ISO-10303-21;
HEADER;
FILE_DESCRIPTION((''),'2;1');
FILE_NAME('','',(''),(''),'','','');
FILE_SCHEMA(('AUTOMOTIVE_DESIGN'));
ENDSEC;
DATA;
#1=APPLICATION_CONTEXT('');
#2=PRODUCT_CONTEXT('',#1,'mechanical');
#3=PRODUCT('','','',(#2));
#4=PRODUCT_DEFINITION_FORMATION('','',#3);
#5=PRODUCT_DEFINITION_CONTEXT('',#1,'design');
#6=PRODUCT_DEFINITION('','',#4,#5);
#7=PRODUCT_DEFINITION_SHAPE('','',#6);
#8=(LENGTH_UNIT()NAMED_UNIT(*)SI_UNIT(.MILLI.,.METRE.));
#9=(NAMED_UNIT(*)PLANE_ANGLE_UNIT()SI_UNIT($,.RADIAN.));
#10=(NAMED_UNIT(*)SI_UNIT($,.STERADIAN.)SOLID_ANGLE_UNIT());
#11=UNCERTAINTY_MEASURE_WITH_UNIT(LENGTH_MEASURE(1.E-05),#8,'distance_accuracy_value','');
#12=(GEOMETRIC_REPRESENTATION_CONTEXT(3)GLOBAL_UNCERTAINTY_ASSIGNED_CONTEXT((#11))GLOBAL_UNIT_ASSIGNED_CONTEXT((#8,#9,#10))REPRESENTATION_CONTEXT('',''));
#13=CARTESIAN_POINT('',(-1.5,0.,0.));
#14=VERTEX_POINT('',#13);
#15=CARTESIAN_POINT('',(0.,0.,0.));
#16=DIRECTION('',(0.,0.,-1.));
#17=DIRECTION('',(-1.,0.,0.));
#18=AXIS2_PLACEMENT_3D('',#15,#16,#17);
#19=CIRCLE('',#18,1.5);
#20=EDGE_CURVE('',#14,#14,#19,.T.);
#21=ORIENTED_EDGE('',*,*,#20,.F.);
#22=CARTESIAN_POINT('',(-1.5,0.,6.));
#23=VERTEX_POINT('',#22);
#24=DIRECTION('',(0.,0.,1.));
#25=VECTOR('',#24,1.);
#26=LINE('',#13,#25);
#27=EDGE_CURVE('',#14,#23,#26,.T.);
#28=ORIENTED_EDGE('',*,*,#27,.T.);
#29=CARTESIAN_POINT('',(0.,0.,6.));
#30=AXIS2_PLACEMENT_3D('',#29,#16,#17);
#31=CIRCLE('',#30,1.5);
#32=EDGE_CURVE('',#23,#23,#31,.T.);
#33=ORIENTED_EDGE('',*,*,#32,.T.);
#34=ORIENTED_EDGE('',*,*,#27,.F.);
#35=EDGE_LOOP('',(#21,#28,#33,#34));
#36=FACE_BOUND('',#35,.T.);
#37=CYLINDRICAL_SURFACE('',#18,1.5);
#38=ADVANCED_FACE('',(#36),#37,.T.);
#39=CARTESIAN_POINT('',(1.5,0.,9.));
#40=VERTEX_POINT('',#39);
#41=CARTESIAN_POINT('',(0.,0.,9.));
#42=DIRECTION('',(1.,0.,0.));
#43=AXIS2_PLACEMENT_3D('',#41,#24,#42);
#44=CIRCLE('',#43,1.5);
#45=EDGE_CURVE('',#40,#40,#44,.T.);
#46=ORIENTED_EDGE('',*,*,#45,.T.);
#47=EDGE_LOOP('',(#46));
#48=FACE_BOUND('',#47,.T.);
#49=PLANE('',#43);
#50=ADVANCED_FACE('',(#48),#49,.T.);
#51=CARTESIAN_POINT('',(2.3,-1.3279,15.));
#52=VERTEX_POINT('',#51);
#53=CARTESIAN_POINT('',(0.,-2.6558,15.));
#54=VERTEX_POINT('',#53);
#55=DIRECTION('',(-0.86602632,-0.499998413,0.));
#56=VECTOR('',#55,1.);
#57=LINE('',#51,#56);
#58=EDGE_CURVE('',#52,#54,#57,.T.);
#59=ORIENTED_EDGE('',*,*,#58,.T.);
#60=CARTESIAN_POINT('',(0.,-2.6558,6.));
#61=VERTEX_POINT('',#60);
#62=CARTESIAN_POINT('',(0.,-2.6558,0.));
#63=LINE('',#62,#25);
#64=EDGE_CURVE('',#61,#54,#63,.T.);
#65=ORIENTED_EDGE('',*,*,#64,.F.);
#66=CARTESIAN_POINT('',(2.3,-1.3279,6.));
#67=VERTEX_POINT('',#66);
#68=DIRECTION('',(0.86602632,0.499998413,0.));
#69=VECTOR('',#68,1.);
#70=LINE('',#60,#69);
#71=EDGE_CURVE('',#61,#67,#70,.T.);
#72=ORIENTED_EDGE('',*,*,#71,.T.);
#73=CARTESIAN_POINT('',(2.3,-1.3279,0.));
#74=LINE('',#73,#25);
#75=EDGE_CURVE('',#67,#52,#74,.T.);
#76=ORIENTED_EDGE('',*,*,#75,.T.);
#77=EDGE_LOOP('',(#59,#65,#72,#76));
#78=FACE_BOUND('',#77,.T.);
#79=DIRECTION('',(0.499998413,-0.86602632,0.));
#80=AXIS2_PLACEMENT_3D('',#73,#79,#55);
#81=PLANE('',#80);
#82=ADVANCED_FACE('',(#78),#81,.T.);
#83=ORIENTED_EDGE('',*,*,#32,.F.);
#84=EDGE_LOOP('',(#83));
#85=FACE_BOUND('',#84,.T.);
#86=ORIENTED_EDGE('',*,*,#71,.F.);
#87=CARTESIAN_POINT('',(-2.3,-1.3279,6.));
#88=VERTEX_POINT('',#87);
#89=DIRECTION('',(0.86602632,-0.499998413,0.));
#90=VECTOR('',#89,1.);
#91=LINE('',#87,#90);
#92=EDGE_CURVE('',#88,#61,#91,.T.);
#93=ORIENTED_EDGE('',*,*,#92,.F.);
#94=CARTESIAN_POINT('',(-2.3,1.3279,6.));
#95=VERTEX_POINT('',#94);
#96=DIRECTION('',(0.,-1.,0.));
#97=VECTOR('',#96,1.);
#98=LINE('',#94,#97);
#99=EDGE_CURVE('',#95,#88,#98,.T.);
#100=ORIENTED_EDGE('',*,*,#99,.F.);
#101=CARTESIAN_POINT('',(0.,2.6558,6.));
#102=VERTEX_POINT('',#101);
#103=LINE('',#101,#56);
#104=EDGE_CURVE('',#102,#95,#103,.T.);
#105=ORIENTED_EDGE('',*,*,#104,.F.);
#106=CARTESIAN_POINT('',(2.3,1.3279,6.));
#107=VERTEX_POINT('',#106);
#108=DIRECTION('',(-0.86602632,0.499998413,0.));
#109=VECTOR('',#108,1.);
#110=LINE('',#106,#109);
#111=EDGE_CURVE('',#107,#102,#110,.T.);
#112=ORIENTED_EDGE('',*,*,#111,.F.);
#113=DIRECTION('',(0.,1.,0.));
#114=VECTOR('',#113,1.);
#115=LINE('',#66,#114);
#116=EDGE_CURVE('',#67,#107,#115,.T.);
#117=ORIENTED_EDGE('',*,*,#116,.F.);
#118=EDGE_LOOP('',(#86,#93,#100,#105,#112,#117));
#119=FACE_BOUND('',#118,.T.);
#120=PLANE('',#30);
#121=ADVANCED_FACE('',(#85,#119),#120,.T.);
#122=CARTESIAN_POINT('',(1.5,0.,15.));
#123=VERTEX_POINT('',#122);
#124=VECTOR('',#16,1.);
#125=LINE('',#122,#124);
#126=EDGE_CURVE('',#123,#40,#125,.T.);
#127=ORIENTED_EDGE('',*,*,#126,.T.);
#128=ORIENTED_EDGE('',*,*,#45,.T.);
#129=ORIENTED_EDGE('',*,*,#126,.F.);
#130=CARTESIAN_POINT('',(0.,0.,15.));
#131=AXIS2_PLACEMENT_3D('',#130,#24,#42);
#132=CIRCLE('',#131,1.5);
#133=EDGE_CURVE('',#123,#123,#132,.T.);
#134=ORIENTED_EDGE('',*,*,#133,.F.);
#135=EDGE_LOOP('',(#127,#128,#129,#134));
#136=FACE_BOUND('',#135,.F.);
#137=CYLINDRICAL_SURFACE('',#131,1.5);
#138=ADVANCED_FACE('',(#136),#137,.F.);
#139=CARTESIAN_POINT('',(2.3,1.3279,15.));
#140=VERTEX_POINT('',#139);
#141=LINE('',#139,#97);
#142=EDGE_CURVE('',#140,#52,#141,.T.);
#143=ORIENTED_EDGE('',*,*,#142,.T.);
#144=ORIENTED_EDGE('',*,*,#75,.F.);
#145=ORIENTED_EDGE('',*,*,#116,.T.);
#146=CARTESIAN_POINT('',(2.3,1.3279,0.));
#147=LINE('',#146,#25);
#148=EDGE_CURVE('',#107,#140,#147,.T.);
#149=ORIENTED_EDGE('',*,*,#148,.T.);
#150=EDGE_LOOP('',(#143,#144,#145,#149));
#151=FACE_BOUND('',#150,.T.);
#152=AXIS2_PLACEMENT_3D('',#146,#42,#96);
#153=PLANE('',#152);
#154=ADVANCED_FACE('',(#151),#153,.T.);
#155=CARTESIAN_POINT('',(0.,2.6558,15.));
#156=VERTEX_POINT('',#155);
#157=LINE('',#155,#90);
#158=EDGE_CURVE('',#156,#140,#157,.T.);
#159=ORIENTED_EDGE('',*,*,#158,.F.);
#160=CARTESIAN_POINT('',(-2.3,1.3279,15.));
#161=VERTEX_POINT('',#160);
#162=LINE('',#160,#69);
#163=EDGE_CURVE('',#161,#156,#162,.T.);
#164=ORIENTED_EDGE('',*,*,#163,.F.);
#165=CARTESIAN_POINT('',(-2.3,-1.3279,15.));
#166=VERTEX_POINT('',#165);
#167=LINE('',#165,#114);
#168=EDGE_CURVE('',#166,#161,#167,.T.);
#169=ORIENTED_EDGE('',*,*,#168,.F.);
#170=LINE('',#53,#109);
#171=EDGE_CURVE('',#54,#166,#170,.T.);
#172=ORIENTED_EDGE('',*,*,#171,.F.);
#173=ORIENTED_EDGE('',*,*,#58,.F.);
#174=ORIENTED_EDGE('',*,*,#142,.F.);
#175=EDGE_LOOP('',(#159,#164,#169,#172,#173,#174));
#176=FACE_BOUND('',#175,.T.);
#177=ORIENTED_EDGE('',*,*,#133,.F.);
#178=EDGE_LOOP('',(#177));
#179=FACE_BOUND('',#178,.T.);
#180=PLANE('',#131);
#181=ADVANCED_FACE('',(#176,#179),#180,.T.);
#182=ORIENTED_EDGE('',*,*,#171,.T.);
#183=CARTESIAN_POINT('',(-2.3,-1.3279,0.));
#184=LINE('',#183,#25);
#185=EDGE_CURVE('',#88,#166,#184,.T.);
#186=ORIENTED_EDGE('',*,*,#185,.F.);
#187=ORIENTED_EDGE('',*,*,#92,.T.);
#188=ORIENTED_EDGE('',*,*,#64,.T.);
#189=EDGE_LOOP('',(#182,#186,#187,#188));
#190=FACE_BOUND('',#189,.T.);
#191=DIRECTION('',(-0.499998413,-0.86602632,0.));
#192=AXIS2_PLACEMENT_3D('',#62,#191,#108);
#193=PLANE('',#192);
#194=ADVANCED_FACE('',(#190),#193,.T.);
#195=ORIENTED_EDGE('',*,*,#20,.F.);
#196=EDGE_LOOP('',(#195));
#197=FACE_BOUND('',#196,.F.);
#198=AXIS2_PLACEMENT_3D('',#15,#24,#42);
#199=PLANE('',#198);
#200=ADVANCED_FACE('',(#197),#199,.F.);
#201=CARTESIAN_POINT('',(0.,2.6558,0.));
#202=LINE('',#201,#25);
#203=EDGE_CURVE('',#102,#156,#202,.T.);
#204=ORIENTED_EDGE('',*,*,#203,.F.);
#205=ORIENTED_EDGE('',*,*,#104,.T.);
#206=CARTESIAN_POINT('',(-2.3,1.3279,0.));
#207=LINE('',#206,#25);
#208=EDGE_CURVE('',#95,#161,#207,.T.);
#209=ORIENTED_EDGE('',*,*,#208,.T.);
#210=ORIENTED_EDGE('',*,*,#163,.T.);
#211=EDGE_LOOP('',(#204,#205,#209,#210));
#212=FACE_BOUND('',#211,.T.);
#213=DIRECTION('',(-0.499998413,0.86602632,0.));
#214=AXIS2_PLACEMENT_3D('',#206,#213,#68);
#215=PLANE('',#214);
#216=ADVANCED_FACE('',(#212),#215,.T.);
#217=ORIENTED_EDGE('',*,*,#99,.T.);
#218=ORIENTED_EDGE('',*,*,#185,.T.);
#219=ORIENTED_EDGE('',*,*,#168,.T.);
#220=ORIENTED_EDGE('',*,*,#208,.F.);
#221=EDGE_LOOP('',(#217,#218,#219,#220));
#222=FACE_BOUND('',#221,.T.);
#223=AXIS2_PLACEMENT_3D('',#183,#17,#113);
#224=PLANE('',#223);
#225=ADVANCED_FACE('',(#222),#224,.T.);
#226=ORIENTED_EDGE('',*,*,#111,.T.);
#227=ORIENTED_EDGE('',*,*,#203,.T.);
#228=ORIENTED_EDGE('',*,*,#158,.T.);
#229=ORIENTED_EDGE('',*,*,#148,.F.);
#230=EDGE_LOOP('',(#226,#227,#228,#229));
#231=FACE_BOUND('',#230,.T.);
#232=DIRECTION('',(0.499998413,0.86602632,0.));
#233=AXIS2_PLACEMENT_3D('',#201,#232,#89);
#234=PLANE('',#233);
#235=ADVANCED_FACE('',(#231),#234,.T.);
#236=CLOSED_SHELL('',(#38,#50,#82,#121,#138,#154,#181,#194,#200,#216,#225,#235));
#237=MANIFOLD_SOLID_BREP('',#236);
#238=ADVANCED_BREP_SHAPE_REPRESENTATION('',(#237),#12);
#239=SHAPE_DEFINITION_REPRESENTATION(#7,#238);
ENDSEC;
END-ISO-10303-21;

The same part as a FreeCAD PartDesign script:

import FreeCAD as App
import Part
import Sketcher
from FreeCAD import Vector
Q = App.Units.Quantity


def add_polygon(sketch, points):
    """Adds a closed chain of lines whose ends are joined by coincident constraints."""
    first, n = sketch.GeometryCount, len(points)
    for a, b in zip(points, points[1:] + points[:1]):
        sketch.addGeometry(Part.LineSegment(App.Vector(*a, 0), App.Vector(*b, 0)), False)
    for i in range(n):
        sketch.addConstraint(Sketcher.Constraint("Coincident", first + i, 2, first + (i + 1) % n, 1))

doc = App.newDocument("Part")
body = doc.addObject("PartDesign::Body", "Body")

# Sketch on XY plane
sketch1 = body.newObject("Sketcher::SketchObject", "Sketch")
sketch1.AttachmentSupport = (doc.getObject("XY_Plane"), [""])
sketch1.MapMode = "FlatFace"
add_polygon(sketch1, [(2.3, 1.3279), (0, 2.6558), (-2.3, 1.3279), (-2.3, -1.3279), (0, -2.6558), (2.3, -1.3279)])  # lines 0-5
sketch1.addConstraint([
    Sketcher.Constraint("Vertical", 2),
    Sketcher.Constraint("Vertical", 5),
    Sketcher.Constraint("Symmetric", 0, 2, 3, 2, -1, 1),
    Sketcher.Constraint("Symmetric", 1, 2, 4, 2, -1, 1),
    Sketcher.Constraint("PointOnObject", 0, 2, -2),
    Sketcher.Constraint("Parallel", 0, 3),
    Sketcher.Constraint("Horizontal", 2, 2, 4, 2),
    Sketcher.Constraint("DistanceX", 2, 2, 4, 2, Q("4.6 mm")),
    Sketcher.Constraint("Angle", 0, Q("150 deg")),
    Sketcher.Constraint("DistanceY", 2, 2, 2, 1, Q("2.6558 mm")),
])
pad1 = body.newObject("PartDesign::Pad", "Pad")
pad1.Profile = sketch1
pad1.Length = 15

# Sketch on XY plane
sketch2 = body.newObject("Sketcher::SketchObject", "Sketch001")
sketch2.AttachmentSupport = (doc.getObject("XY_Plane"), [""])
sketch2.MapMode = "FlatFace"
add_polygon(sketch2, [(-2.3, 1.3279), (0, 2.6558), (2.3, 1.3279), (2.3, -1.3279), (0, -2.6558), (-2.3, -1.3279)])  # lines 0-5
sketch2.addGeometry(Part.Circle(Vector(0, 0, 0), Vector(0, 0, 1), 1.5), False)  # 6
sketch2.addConstraint([
    Sketcher.Constraint("Vertical", 2),
    Sketcher.Constraint("Vertical", 5),
    Sketcher.Constraint("Coincident", 6, 3, -1, 1),
    Sketcher.Constraint("Symmetric", 0, 2, 3, 2, -1, 1),
    Sketcher.Constraint("Symmetric", 1, 2, 4, 2, -1, 1),
    Sketcher.Constraint("PointOnObject", 0, 2, -2),
    Sketcher.Constraint("Parallel", 0, 3),
    Sketcher.Constraint("Horizontal", 2, 2, 4, 2),
    Sketcher.Constraint("Diameter", 6, Q("3 mm")),
    Sketcher.Constraint("Angle", 0, Q("30 deg")),
    Sketcher.Constraint("DistanceX", -1, 1, 1, 2, Q("2.3 mm")),
    Sketcher.Constraint("DistanceY", 2, 2, 2, 1, Q("2.6558 mm")),
])
pocket1 = body.newObject("PartDesign::Pocket", "Pocket")
pocket1.Profile = sketch2
pocket1.Length = 6
pocket1.Reversed = True

# Sketch on XY plane
sketch3 = body.newObject("Sketcher::SketchObject", "Sketch002")
sketch3.AttachmentSupport = (doc.getObject("XY_Plane"), [""])
sketch3.MapMode = "FlatFace"
sketch3.AttachmentOffset = App.Placement(Vector(0, 0, 15), App.Rotation())
sketch3.addGeometry(Part.Circle(Vector(0, 0, 0), Vector(0, 0, 1), 1.5), False)
sketch3.addConstraint([
    Sketcher.Constraint("Coincident", 0, 3, -1, 1),
    Sketcher.Constraint("Diameter", 0, Q("3 mm")),
])
pocket2 = body.newObject("PartDesign::Pocket", "Pocket001")
pocket2.Profile = sketch3
pocket2.Length = 6

doc.recompute()
